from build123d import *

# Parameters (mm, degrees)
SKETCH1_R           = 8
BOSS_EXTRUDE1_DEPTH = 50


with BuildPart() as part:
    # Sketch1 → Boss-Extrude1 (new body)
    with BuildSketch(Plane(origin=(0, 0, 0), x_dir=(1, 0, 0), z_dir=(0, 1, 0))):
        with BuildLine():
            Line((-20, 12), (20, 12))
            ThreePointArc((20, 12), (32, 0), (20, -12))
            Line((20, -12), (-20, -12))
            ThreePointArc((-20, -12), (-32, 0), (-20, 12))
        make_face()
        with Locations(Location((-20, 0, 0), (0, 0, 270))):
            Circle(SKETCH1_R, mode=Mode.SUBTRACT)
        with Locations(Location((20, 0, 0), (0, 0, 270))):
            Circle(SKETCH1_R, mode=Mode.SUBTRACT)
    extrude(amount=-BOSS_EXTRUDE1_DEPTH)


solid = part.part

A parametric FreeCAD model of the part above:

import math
import FreeCAD as App
import Part
import Sketcher
from FreeCAD import Vector
Q = App.Units.Quantity

doc = App.newDocument("Part")
body = doc.addObject("PartDesign::Body", "Body")

# Sketch on XZ plane
sketch1 = body.newObject("Sketcher::SketchObject", "Sketch")
sketch1.AttachmentSupport = (doc.getObject("XZ_Plane"), [""])
sketch1.MapMode = "FlatFace"
sketch1.addGeometry([
    Part.LineSegment(Vector(20, -12, 0), Vector(-20, -12, 0)),  # 0
    Part.ArcOfCircle(Part.Circle(Vector(-20, 0, 0), Vector(0, 0, 1), 12), math.radians(90), math.radians(270)),  # 1
    Part.LineSegment(Vector(-20, 12, 0), Vector(20, 12, 0)),  # 2
    Part.ArcOfCircle(Part.Circle(Vector(20, 0, 0), Vector(0, 0, 1), 12), math.radians(-90), math.radians(90)),  # 3
    Part.Circle(Vector(20, 0, 0), Vector(0, 0, 1), 8),  # 4
    Part.Circle(Vector(-20, 0, 0), Vector(0, 0, 1), 8),  # 5
], False)
sketch1.addConstraint([
    Sketcher.Constraint("Tangent", 0, 2, 1, 2),
    Sketcher.Constraint("Tangent", 1, 1, 2, 1),
    Sketcher.Constraint("Tangent", 2, 2, 3, 2),
    Sketcher.Constraint("Tangent", 3, 1, 0, 1),
    Sketcher.Constraint("Horizontal", 0),
    Sketcher.Constraint("Horizontal", 2),
    Sketcher.Constraint("Coincident", 4, 3, 3, 3),
    Sketcher.Constraint("Coincident", 5, 3, 1, 3),
    Sketcher.Constraint("Equal", 4, 5),
    Sketcher.Constraint("Symmetric", 1, 3, 3, 3, -1, 1),
    Sketcher.Constraint("Diameter", 4, Q("16 mm")),
    Sketcher.Constraint("Radius", 1, Q("12 mm")),
    Sketcher.Constraint("DistanceX", 0, 2, 0, 1, Q("40 mm")),
])
pad1 = body.newObject("PartDesign::Pad", "Pad")
pad1.Profile = sketch1
pad1.Length = 50

doc.recompute()
